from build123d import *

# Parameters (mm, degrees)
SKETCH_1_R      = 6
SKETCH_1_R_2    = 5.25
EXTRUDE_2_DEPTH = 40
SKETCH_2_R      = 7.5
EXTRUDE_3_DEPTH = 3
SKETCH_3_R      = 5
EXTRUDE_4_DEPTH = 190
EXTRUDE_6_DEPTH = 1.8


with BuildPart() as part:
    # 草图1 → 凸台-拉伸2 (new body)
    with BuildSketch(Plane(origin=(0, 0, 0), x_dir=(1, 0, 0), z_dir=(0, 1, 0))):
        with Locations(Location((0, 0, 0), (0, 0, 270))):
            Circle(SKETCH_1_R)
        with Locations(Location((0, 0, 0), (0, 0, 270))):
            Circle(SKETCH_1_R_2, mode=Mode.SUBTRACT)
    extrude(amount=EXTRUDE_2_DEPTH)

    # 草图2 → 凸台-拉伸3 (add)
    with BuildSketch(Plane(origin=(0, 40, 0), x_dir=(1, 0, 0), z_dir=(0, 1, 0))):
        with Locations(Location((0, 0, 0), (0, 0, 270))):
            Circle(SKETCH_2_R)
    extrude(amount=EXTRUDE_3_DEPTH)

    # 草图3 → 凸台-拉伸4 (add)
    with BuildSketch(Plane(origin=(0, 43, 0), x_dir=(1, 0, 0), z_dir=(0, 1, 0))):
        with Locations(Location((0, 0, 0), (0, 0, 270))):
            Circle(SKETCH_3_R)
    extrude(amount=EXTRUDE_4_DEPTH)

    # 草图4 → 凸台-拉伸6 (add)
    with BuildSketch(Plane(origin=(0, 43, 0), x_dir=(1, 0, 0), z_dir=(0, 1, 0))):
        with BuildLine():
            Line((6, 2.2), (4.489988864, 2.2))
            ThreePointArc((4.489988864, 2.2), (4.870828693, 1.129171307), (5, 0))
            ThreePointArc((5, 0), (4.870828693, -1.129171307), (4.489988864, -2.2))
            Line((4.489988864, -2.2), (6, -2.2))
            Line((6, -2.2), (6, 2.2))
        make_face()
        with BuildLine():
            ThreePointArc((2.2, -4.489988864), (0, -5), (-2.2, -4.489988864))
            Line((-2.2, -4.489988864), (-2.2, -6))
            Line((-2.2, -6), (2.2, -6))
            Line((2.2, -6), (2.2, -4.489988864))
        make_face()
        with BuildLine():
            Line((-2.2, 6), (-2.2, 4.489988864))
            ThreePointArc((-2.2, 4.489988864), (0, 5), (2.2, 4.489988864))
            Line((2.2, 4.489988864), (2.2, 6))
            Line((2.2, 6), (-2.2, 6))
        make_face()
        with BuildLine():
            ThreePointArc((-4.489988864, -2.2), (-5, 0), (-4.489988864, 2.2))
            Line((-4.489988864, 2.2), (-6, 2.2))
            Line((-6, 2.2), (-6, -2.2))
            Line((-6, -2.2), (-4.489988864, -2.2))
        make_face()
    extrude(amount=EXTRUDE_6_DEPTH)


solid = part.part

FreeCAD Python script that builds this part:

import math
import FreeCAD as App
import Part
import Sketcher
Q = App.Units.Quantity

doc = App.newDocument("Part")
params = doc.addObject("Spreadsheet::Sheet", "Params")
for row, (alias, value) in enumerate([
    ("sketch1_diameter", "12 mm"),
    ("sketch1_diameter2", "10.5 mm"),
    ("pad1_length", "40 mm"),
    ("sketch2_diameter", "15 mm"),
    ("pad2_length", "3 mm"),
    ("sketch3_diameter", "10 mm"),
    ("pad3_length", "190 mm"),
    ("sketch4_radius", "5 mm"),
    ("sketch4_width", "4.4 mm"),
    ("pad4_length", "1.8 mm"),
], start=1):
    params.set(f"A{row}", alias)
    params.set(f"B{row}", "=" + value)
    params.setAlias(f"B{row}", alias)

body = doc.addObject("PartDesign::Body", "Body")

# Sketch on XZ plane
sketch1 = body.newObject("Sketcher::SketchObject", "Sketch")
sketch1.AttachmentSupport = (doc.getObject("XZ_Plane"), [""])
sketch1.MapMode = "FlatFace"
sketch1.addGeometry(Part.Circle(App.Vector(0, 0, 0), App.Vector(0, 0, 1), 6), False)
sketch1.addGeometry(Part.Circle(App.Vector(0, 0, 0), App.Vector(0, 0, 1), 5), False)
sketch1.addConstraint(Sketcher.Constraint("Coincident", 0, 3, -1, 1))
sketch1.addConstraint(Sketcher.Constraint("Coincident", 1, 3, -1, 1))
sketch1.addConstraint(Sketcher.Constraint("Diameter", 0, Q("12 mm")))
sketch1.addConstraint(Sketcher.Constraint("Diameter", 1, Q("10.5 mm")))
sketch1.setExpression("Constraints[2]", "Params.sketch1_diameter")
sketch1.setExpression("Constraints[3]", "Params.sketch1_diameter2")
pad1 = body.newObject("PartDesign::Pad", "Pad")
pad1.Profile = sketch1
pad1.setExpression("Length", "Params.pad1_length")
pad1.Reversed = True

# Sketch on XZ plane
sketch2 = body.newObject("Sketcher::SketchObject", "Sketch001")
sketch2.AttachmentSupport = (doc.getObject("XZ_Plane"), [""])
sketch2.MapMode = "FlatFace"
sketch2.AttachmentOffset = App.Placement(App.Vector(0, 0, -40), App.Rotation())
sketch2.addGeometry(Part.Circle(App.Vector(0, 0, 0), App.Vector(0, 0, 1), 8), False)
sketch2.addConstraint(Sketcher.Constraint("Coincident", 0, 3, -1, 1))
sketch2.addConstraint(Sketcher.Constraint("Diameter", 0, Q("15 mm")))
sketch2.setExpression("Constraints[1]", "Params.sketch2_diameter")
pad2 = body.newObject("PartDesign::Pad", "Pad001")
pad2.Profile = sketch2
pad2.setExpression("Length", "Params.pad2_length")
pad2.Reversed = True

# Sketch on XZ plane
sketch3 = body.newObject("Sketcher::SketchObject", "Sketch002")
sketch3.AttachmentSupport = (doc.getObject("XZ_Plane"), [""])
sketch3.MapMode = "FlatFace"
sketch3.AttachmentOffset = App.Placement(App.Vector(0, 0, -43), App.Rotation())
sketch3.addGeometry(Part.Circle(App.Vector(0, 0, 0), App.Vector(0, 0, 1), 5), False)
sketch3.addConstraint(Sketcher.Constraint("Coincident", 0, 3, -1, 1))
sketch3.addConstraint(Sketcher.Constraint("Diameter", 0, Q("10 mm")))
sketch3.setExpression("Constraints[1]", "Params.sketch3_diameter")
pad3 = body.newObject("PartDesign::Pad", "Pad002")
pad3.Profile = sketch3
pad3.setExpression("Length", "Params.pad3_length")
pad3.Reversed = True

# Sketch on XZ plane
sketch4 = body.newObject("Sketcher::SketchObject", "Sketch003")
sketch4.AttachmentSupport = (doc.getObject("XZ_Plane"), [""])
sketch4.MapMode = "FlatFace"
sketch4.AttachmentOffset = App.Placement(App.Vector(0, 0, -43), App.Rotation())
sketch4.addGeometry(Part.LineSegment(App.Vector(6, -2.2, 0), App.Vector(4.5, -2.2, 0)), False)
sketch4.addGeometry(Part.ArcOfCircle(Part.Circle(App.Vector(0, 0, 0), App.Vector(0, 0, 1), 5), math.radians(-26), math.radians(0)), False)
sketch4.addGeometry(Part.ArcOfCircle(Part.Circle(App.Vector(0, 0, 0), App.Vector(0, 0, 1), 5), math.radians(0), math.radians(26)), False)
sketch4.addGeometry(Part.LineSegment(App.Vector(4.5, 2.2, 0), App.Vector(6, 2.2, 0)), False)
sketch4.addGeometry(Part.LineSegment(App.Vector(6, 2.2, 0), App.Vector(6, -2.2, 0)), False)
sketch4.addGeometry(Part.ArcOfCircle(Part.Circle(App.Vector(0, 0, 0), App.Vector(0, 0, 1), 5), math.radians(64), math.radians(116)), False)
sketch4.addGeometry(Part.LineSegment(App.Vector(-2.2, 4.5, 0), App.Vector(-2.2, 6, 0)), False)
sketch4.addGeometry(Part.LineSegment(App.Vector(-2.2, 6, 0), App.Vector(2.2, 6, 0)), False)
sketch4.addGeometry(Part.LineSegment(App.Vector(2.2, 6, 0), App.Vector(2.2, 4.5, 0)), False)
sketch4.addGeometry(Part.LineSegment(App.Vector(-2.2, -6, 0), App.Vector(-2.2, -4.5, 0)), False)
sketch4.addGeometry(Part.ArcOfCircle(Part.Circle(App.Vector(0, 0, 0), App.Vector(0, 0, 1), 5), math.radians(-116), math.radians(-64)), False)
sketch4.addGeometry(Part.LineSegment(App.Vector(2.2, -4.5, 0), App.Vector(2.2, -6, 0)), False)
sketch4.addGeometry(Part.LineSegment(App.Vector(2.2, -6, 0), App.Vector(-2.2, -6, 0)), False)
sketch4.addGeometry(Part.ArcOfCircle(Part.Circle(App.Vector(0, 0, 0), App.Vector(0, 0, 1), 5), math.radians(154), math.radians(206)), False)
sketch4.addGeometry(Part.LineSegment(App.Vector(-4.5, -2.2, 0), App.Vector(-6, -2.2, 0)), False)
sketch4.addGeometry(Part.LineSegment(App.Vector(-6, -2.2, 0), App.Vector(-6, 2.2, 0)), False)
sketch4.addGeometry(Part.LineSegment(App.Vector(-6, 2.2, 0), App.Vector(-4.5, 2.2, 0)), False)
sketch4.addConstraint(Sketcher.Constraint("Coincident", 0, 2, 1, 1))
sketch4.addConstraint(Sketcher.Constraint("Tangent", 1, 2, 2, 1))
sketch4.addConstraint(Sketcher.Constraint("Coincident", 2, 2, 3, 1))
sketch4.addConstraint(Sketcher.Constraint("Coincident", 3, 2, 4, 1))
sketch4.addConstraint(Sketcher.Constraint("Coincident", 4, 2, 0, 1))
sketch4.addConstraint(Sketcher.Constraint("Coincident", 5, 2, 6, 1))
sketch4.addConstraint(Sketcher.Constraint("Coincident", 6, 2, 7, 1))
sketch4.addConstraint(Sketcher.Constraint("Coincident", 7, 2, 8, 1))
sketch4.addConstraint(Sketcher.Constraint("Coincident", 8, 2, 5, 1))
sketch4.addConstraint(Sketcher.Constraint("Coincident", 9, 2, 10, 1))
sketch4.addConstraint(Sketcher.Constraint("Coincident", 10, 2, 11, 1))
sketch4.addConstraint(Sketcher.Constraint("Coincident", 11, 2, 12, 1))
sketch4.addConstraint(Sketcher.Constraint("Coincident", 12, 2, 9, 1))
sketch4.addConstraint(Sketcher.Constraint("Coincident", 13, 2, 14, 1))
sketch4.addConstraint(Sketcher.Constraint("Coincident", 14, 2, 15, 1))
sketch4.addConstraint(Sketcher.Constraint("Coincident", 15, 2, 16, 1))
sketch4.addConstraint(Sketcher.Constraint("Coincident", 16, 2, 13, 1))
sketch4.addConstraint(Sketcher.Constraint("Horizontal", 0))
sketch4.addConstraint(Sketcher.Constraint("Horizontal", 3))
sketch4.addConstraint(Sketcher.Constraint("Vertical", 4))
sketch4.addConstraint(Sketcher.Constraint("Vertical", 6))
sketch4.addConstraint(Sketcher.Constraint("Horizontal", 7))
sketch4.addConstraint(Sketcher.Constraint("Vertical", 8))
sketch4.addConstraint(Sketcher.Constraint("Vertical", 9))
sketch4.addConstraint(Sketcher.Constraint("Vertical", 11))
sketch4.addConstraint(Sketcher.Constraint("Horizontal", 12))
sketch4.addConstraint(Sketcher.Constraint("Horizontal", 14))
sketch4.addConstraint(Sketcher.Constraint("Vertical", 15))
sketch4.addConstraint(Sketcher.Constraint("Horizontal", 16))
sketch4.addConstraint(Sketcher.Constraint("Coincident", 1, 3, -1, 1))
sketch4.addConstraint(Sketcher.Constraint("Coincident", 5, 3, -1, 1))
sketch4.addConstraint(Sketcher.Constraint("Coincident", 10, 3, -1, 1))
sketch4.addConstraint(Sketcher.Constraint("Coincident", 13, 3, -1, 1))
sketch4.addConstraint(Sketcher.Constraint("Equal", 1, 2))
sketch4.addConstraint(Sketcher.Constraint("Equal", 2, 5))
sketch4.addConstraint(Sketcher.Constraint("Equal", 5, 10))
sketch4.addConstraint(Sketcher.Constraint("Equal", 10, 13))
sketch4.addConstraint(Sketcher.Constraint("Symmetric", 6, 2, 11, 2, -1, 1))
sketch4.addConstraint(Sketcher.Constraint("Symmetric", 3, 2, 14, 2, -1, 1))
sketch4.addConstraint(Sketcher.Constraint("PointOnObject", 1, 2, -1))
sketch4.addConstraint(Sketcher.Constraint("Horizontal", 5, 2, 8, 2))
sketch4.addConstraint(Sketcher.Constraint("Horizontal", 9, 2, 10, 2))
sketch4.addConstraint(Sketcher.Constraint("Horizontal", 4, 2, 13, 2))
sketch4.addConstraint(Sketcher.Constraint("Horizontal", 3, 2, 15, 2))
sketch4.addConstraint(Sketcher.Constraint("Equal", 12, 4))
sketch4.addConstraint(Sketcher.Constraint("Equal", 16, 6))
sketch4.addConstraint(Sketcher.Constraint("Radius", 1, Q("5 mm")))
sketch4.addConstraint(Sketcher.Constraint("DistanceX", 7, 1, 7, 2, Q("4.4 mm")))
sketch4.addConstraint(Sketcher.Constraint("DistanceX", -1, 1, 3, 2, Q("6 mm")))
sketch4.setExpression("Constraints[46]", "Params.sketch4_radius")
sketch4.setExpression("Constraints[47]", "Params.sketch4_width")
pad4 = body.newObject("PartDesign::Pad", "Pad003")
pad4.Profile = sketch4
pad4.setExpression("Length", "Params.pad4_length")
pad4.Reversed = True

doc.recompute()
